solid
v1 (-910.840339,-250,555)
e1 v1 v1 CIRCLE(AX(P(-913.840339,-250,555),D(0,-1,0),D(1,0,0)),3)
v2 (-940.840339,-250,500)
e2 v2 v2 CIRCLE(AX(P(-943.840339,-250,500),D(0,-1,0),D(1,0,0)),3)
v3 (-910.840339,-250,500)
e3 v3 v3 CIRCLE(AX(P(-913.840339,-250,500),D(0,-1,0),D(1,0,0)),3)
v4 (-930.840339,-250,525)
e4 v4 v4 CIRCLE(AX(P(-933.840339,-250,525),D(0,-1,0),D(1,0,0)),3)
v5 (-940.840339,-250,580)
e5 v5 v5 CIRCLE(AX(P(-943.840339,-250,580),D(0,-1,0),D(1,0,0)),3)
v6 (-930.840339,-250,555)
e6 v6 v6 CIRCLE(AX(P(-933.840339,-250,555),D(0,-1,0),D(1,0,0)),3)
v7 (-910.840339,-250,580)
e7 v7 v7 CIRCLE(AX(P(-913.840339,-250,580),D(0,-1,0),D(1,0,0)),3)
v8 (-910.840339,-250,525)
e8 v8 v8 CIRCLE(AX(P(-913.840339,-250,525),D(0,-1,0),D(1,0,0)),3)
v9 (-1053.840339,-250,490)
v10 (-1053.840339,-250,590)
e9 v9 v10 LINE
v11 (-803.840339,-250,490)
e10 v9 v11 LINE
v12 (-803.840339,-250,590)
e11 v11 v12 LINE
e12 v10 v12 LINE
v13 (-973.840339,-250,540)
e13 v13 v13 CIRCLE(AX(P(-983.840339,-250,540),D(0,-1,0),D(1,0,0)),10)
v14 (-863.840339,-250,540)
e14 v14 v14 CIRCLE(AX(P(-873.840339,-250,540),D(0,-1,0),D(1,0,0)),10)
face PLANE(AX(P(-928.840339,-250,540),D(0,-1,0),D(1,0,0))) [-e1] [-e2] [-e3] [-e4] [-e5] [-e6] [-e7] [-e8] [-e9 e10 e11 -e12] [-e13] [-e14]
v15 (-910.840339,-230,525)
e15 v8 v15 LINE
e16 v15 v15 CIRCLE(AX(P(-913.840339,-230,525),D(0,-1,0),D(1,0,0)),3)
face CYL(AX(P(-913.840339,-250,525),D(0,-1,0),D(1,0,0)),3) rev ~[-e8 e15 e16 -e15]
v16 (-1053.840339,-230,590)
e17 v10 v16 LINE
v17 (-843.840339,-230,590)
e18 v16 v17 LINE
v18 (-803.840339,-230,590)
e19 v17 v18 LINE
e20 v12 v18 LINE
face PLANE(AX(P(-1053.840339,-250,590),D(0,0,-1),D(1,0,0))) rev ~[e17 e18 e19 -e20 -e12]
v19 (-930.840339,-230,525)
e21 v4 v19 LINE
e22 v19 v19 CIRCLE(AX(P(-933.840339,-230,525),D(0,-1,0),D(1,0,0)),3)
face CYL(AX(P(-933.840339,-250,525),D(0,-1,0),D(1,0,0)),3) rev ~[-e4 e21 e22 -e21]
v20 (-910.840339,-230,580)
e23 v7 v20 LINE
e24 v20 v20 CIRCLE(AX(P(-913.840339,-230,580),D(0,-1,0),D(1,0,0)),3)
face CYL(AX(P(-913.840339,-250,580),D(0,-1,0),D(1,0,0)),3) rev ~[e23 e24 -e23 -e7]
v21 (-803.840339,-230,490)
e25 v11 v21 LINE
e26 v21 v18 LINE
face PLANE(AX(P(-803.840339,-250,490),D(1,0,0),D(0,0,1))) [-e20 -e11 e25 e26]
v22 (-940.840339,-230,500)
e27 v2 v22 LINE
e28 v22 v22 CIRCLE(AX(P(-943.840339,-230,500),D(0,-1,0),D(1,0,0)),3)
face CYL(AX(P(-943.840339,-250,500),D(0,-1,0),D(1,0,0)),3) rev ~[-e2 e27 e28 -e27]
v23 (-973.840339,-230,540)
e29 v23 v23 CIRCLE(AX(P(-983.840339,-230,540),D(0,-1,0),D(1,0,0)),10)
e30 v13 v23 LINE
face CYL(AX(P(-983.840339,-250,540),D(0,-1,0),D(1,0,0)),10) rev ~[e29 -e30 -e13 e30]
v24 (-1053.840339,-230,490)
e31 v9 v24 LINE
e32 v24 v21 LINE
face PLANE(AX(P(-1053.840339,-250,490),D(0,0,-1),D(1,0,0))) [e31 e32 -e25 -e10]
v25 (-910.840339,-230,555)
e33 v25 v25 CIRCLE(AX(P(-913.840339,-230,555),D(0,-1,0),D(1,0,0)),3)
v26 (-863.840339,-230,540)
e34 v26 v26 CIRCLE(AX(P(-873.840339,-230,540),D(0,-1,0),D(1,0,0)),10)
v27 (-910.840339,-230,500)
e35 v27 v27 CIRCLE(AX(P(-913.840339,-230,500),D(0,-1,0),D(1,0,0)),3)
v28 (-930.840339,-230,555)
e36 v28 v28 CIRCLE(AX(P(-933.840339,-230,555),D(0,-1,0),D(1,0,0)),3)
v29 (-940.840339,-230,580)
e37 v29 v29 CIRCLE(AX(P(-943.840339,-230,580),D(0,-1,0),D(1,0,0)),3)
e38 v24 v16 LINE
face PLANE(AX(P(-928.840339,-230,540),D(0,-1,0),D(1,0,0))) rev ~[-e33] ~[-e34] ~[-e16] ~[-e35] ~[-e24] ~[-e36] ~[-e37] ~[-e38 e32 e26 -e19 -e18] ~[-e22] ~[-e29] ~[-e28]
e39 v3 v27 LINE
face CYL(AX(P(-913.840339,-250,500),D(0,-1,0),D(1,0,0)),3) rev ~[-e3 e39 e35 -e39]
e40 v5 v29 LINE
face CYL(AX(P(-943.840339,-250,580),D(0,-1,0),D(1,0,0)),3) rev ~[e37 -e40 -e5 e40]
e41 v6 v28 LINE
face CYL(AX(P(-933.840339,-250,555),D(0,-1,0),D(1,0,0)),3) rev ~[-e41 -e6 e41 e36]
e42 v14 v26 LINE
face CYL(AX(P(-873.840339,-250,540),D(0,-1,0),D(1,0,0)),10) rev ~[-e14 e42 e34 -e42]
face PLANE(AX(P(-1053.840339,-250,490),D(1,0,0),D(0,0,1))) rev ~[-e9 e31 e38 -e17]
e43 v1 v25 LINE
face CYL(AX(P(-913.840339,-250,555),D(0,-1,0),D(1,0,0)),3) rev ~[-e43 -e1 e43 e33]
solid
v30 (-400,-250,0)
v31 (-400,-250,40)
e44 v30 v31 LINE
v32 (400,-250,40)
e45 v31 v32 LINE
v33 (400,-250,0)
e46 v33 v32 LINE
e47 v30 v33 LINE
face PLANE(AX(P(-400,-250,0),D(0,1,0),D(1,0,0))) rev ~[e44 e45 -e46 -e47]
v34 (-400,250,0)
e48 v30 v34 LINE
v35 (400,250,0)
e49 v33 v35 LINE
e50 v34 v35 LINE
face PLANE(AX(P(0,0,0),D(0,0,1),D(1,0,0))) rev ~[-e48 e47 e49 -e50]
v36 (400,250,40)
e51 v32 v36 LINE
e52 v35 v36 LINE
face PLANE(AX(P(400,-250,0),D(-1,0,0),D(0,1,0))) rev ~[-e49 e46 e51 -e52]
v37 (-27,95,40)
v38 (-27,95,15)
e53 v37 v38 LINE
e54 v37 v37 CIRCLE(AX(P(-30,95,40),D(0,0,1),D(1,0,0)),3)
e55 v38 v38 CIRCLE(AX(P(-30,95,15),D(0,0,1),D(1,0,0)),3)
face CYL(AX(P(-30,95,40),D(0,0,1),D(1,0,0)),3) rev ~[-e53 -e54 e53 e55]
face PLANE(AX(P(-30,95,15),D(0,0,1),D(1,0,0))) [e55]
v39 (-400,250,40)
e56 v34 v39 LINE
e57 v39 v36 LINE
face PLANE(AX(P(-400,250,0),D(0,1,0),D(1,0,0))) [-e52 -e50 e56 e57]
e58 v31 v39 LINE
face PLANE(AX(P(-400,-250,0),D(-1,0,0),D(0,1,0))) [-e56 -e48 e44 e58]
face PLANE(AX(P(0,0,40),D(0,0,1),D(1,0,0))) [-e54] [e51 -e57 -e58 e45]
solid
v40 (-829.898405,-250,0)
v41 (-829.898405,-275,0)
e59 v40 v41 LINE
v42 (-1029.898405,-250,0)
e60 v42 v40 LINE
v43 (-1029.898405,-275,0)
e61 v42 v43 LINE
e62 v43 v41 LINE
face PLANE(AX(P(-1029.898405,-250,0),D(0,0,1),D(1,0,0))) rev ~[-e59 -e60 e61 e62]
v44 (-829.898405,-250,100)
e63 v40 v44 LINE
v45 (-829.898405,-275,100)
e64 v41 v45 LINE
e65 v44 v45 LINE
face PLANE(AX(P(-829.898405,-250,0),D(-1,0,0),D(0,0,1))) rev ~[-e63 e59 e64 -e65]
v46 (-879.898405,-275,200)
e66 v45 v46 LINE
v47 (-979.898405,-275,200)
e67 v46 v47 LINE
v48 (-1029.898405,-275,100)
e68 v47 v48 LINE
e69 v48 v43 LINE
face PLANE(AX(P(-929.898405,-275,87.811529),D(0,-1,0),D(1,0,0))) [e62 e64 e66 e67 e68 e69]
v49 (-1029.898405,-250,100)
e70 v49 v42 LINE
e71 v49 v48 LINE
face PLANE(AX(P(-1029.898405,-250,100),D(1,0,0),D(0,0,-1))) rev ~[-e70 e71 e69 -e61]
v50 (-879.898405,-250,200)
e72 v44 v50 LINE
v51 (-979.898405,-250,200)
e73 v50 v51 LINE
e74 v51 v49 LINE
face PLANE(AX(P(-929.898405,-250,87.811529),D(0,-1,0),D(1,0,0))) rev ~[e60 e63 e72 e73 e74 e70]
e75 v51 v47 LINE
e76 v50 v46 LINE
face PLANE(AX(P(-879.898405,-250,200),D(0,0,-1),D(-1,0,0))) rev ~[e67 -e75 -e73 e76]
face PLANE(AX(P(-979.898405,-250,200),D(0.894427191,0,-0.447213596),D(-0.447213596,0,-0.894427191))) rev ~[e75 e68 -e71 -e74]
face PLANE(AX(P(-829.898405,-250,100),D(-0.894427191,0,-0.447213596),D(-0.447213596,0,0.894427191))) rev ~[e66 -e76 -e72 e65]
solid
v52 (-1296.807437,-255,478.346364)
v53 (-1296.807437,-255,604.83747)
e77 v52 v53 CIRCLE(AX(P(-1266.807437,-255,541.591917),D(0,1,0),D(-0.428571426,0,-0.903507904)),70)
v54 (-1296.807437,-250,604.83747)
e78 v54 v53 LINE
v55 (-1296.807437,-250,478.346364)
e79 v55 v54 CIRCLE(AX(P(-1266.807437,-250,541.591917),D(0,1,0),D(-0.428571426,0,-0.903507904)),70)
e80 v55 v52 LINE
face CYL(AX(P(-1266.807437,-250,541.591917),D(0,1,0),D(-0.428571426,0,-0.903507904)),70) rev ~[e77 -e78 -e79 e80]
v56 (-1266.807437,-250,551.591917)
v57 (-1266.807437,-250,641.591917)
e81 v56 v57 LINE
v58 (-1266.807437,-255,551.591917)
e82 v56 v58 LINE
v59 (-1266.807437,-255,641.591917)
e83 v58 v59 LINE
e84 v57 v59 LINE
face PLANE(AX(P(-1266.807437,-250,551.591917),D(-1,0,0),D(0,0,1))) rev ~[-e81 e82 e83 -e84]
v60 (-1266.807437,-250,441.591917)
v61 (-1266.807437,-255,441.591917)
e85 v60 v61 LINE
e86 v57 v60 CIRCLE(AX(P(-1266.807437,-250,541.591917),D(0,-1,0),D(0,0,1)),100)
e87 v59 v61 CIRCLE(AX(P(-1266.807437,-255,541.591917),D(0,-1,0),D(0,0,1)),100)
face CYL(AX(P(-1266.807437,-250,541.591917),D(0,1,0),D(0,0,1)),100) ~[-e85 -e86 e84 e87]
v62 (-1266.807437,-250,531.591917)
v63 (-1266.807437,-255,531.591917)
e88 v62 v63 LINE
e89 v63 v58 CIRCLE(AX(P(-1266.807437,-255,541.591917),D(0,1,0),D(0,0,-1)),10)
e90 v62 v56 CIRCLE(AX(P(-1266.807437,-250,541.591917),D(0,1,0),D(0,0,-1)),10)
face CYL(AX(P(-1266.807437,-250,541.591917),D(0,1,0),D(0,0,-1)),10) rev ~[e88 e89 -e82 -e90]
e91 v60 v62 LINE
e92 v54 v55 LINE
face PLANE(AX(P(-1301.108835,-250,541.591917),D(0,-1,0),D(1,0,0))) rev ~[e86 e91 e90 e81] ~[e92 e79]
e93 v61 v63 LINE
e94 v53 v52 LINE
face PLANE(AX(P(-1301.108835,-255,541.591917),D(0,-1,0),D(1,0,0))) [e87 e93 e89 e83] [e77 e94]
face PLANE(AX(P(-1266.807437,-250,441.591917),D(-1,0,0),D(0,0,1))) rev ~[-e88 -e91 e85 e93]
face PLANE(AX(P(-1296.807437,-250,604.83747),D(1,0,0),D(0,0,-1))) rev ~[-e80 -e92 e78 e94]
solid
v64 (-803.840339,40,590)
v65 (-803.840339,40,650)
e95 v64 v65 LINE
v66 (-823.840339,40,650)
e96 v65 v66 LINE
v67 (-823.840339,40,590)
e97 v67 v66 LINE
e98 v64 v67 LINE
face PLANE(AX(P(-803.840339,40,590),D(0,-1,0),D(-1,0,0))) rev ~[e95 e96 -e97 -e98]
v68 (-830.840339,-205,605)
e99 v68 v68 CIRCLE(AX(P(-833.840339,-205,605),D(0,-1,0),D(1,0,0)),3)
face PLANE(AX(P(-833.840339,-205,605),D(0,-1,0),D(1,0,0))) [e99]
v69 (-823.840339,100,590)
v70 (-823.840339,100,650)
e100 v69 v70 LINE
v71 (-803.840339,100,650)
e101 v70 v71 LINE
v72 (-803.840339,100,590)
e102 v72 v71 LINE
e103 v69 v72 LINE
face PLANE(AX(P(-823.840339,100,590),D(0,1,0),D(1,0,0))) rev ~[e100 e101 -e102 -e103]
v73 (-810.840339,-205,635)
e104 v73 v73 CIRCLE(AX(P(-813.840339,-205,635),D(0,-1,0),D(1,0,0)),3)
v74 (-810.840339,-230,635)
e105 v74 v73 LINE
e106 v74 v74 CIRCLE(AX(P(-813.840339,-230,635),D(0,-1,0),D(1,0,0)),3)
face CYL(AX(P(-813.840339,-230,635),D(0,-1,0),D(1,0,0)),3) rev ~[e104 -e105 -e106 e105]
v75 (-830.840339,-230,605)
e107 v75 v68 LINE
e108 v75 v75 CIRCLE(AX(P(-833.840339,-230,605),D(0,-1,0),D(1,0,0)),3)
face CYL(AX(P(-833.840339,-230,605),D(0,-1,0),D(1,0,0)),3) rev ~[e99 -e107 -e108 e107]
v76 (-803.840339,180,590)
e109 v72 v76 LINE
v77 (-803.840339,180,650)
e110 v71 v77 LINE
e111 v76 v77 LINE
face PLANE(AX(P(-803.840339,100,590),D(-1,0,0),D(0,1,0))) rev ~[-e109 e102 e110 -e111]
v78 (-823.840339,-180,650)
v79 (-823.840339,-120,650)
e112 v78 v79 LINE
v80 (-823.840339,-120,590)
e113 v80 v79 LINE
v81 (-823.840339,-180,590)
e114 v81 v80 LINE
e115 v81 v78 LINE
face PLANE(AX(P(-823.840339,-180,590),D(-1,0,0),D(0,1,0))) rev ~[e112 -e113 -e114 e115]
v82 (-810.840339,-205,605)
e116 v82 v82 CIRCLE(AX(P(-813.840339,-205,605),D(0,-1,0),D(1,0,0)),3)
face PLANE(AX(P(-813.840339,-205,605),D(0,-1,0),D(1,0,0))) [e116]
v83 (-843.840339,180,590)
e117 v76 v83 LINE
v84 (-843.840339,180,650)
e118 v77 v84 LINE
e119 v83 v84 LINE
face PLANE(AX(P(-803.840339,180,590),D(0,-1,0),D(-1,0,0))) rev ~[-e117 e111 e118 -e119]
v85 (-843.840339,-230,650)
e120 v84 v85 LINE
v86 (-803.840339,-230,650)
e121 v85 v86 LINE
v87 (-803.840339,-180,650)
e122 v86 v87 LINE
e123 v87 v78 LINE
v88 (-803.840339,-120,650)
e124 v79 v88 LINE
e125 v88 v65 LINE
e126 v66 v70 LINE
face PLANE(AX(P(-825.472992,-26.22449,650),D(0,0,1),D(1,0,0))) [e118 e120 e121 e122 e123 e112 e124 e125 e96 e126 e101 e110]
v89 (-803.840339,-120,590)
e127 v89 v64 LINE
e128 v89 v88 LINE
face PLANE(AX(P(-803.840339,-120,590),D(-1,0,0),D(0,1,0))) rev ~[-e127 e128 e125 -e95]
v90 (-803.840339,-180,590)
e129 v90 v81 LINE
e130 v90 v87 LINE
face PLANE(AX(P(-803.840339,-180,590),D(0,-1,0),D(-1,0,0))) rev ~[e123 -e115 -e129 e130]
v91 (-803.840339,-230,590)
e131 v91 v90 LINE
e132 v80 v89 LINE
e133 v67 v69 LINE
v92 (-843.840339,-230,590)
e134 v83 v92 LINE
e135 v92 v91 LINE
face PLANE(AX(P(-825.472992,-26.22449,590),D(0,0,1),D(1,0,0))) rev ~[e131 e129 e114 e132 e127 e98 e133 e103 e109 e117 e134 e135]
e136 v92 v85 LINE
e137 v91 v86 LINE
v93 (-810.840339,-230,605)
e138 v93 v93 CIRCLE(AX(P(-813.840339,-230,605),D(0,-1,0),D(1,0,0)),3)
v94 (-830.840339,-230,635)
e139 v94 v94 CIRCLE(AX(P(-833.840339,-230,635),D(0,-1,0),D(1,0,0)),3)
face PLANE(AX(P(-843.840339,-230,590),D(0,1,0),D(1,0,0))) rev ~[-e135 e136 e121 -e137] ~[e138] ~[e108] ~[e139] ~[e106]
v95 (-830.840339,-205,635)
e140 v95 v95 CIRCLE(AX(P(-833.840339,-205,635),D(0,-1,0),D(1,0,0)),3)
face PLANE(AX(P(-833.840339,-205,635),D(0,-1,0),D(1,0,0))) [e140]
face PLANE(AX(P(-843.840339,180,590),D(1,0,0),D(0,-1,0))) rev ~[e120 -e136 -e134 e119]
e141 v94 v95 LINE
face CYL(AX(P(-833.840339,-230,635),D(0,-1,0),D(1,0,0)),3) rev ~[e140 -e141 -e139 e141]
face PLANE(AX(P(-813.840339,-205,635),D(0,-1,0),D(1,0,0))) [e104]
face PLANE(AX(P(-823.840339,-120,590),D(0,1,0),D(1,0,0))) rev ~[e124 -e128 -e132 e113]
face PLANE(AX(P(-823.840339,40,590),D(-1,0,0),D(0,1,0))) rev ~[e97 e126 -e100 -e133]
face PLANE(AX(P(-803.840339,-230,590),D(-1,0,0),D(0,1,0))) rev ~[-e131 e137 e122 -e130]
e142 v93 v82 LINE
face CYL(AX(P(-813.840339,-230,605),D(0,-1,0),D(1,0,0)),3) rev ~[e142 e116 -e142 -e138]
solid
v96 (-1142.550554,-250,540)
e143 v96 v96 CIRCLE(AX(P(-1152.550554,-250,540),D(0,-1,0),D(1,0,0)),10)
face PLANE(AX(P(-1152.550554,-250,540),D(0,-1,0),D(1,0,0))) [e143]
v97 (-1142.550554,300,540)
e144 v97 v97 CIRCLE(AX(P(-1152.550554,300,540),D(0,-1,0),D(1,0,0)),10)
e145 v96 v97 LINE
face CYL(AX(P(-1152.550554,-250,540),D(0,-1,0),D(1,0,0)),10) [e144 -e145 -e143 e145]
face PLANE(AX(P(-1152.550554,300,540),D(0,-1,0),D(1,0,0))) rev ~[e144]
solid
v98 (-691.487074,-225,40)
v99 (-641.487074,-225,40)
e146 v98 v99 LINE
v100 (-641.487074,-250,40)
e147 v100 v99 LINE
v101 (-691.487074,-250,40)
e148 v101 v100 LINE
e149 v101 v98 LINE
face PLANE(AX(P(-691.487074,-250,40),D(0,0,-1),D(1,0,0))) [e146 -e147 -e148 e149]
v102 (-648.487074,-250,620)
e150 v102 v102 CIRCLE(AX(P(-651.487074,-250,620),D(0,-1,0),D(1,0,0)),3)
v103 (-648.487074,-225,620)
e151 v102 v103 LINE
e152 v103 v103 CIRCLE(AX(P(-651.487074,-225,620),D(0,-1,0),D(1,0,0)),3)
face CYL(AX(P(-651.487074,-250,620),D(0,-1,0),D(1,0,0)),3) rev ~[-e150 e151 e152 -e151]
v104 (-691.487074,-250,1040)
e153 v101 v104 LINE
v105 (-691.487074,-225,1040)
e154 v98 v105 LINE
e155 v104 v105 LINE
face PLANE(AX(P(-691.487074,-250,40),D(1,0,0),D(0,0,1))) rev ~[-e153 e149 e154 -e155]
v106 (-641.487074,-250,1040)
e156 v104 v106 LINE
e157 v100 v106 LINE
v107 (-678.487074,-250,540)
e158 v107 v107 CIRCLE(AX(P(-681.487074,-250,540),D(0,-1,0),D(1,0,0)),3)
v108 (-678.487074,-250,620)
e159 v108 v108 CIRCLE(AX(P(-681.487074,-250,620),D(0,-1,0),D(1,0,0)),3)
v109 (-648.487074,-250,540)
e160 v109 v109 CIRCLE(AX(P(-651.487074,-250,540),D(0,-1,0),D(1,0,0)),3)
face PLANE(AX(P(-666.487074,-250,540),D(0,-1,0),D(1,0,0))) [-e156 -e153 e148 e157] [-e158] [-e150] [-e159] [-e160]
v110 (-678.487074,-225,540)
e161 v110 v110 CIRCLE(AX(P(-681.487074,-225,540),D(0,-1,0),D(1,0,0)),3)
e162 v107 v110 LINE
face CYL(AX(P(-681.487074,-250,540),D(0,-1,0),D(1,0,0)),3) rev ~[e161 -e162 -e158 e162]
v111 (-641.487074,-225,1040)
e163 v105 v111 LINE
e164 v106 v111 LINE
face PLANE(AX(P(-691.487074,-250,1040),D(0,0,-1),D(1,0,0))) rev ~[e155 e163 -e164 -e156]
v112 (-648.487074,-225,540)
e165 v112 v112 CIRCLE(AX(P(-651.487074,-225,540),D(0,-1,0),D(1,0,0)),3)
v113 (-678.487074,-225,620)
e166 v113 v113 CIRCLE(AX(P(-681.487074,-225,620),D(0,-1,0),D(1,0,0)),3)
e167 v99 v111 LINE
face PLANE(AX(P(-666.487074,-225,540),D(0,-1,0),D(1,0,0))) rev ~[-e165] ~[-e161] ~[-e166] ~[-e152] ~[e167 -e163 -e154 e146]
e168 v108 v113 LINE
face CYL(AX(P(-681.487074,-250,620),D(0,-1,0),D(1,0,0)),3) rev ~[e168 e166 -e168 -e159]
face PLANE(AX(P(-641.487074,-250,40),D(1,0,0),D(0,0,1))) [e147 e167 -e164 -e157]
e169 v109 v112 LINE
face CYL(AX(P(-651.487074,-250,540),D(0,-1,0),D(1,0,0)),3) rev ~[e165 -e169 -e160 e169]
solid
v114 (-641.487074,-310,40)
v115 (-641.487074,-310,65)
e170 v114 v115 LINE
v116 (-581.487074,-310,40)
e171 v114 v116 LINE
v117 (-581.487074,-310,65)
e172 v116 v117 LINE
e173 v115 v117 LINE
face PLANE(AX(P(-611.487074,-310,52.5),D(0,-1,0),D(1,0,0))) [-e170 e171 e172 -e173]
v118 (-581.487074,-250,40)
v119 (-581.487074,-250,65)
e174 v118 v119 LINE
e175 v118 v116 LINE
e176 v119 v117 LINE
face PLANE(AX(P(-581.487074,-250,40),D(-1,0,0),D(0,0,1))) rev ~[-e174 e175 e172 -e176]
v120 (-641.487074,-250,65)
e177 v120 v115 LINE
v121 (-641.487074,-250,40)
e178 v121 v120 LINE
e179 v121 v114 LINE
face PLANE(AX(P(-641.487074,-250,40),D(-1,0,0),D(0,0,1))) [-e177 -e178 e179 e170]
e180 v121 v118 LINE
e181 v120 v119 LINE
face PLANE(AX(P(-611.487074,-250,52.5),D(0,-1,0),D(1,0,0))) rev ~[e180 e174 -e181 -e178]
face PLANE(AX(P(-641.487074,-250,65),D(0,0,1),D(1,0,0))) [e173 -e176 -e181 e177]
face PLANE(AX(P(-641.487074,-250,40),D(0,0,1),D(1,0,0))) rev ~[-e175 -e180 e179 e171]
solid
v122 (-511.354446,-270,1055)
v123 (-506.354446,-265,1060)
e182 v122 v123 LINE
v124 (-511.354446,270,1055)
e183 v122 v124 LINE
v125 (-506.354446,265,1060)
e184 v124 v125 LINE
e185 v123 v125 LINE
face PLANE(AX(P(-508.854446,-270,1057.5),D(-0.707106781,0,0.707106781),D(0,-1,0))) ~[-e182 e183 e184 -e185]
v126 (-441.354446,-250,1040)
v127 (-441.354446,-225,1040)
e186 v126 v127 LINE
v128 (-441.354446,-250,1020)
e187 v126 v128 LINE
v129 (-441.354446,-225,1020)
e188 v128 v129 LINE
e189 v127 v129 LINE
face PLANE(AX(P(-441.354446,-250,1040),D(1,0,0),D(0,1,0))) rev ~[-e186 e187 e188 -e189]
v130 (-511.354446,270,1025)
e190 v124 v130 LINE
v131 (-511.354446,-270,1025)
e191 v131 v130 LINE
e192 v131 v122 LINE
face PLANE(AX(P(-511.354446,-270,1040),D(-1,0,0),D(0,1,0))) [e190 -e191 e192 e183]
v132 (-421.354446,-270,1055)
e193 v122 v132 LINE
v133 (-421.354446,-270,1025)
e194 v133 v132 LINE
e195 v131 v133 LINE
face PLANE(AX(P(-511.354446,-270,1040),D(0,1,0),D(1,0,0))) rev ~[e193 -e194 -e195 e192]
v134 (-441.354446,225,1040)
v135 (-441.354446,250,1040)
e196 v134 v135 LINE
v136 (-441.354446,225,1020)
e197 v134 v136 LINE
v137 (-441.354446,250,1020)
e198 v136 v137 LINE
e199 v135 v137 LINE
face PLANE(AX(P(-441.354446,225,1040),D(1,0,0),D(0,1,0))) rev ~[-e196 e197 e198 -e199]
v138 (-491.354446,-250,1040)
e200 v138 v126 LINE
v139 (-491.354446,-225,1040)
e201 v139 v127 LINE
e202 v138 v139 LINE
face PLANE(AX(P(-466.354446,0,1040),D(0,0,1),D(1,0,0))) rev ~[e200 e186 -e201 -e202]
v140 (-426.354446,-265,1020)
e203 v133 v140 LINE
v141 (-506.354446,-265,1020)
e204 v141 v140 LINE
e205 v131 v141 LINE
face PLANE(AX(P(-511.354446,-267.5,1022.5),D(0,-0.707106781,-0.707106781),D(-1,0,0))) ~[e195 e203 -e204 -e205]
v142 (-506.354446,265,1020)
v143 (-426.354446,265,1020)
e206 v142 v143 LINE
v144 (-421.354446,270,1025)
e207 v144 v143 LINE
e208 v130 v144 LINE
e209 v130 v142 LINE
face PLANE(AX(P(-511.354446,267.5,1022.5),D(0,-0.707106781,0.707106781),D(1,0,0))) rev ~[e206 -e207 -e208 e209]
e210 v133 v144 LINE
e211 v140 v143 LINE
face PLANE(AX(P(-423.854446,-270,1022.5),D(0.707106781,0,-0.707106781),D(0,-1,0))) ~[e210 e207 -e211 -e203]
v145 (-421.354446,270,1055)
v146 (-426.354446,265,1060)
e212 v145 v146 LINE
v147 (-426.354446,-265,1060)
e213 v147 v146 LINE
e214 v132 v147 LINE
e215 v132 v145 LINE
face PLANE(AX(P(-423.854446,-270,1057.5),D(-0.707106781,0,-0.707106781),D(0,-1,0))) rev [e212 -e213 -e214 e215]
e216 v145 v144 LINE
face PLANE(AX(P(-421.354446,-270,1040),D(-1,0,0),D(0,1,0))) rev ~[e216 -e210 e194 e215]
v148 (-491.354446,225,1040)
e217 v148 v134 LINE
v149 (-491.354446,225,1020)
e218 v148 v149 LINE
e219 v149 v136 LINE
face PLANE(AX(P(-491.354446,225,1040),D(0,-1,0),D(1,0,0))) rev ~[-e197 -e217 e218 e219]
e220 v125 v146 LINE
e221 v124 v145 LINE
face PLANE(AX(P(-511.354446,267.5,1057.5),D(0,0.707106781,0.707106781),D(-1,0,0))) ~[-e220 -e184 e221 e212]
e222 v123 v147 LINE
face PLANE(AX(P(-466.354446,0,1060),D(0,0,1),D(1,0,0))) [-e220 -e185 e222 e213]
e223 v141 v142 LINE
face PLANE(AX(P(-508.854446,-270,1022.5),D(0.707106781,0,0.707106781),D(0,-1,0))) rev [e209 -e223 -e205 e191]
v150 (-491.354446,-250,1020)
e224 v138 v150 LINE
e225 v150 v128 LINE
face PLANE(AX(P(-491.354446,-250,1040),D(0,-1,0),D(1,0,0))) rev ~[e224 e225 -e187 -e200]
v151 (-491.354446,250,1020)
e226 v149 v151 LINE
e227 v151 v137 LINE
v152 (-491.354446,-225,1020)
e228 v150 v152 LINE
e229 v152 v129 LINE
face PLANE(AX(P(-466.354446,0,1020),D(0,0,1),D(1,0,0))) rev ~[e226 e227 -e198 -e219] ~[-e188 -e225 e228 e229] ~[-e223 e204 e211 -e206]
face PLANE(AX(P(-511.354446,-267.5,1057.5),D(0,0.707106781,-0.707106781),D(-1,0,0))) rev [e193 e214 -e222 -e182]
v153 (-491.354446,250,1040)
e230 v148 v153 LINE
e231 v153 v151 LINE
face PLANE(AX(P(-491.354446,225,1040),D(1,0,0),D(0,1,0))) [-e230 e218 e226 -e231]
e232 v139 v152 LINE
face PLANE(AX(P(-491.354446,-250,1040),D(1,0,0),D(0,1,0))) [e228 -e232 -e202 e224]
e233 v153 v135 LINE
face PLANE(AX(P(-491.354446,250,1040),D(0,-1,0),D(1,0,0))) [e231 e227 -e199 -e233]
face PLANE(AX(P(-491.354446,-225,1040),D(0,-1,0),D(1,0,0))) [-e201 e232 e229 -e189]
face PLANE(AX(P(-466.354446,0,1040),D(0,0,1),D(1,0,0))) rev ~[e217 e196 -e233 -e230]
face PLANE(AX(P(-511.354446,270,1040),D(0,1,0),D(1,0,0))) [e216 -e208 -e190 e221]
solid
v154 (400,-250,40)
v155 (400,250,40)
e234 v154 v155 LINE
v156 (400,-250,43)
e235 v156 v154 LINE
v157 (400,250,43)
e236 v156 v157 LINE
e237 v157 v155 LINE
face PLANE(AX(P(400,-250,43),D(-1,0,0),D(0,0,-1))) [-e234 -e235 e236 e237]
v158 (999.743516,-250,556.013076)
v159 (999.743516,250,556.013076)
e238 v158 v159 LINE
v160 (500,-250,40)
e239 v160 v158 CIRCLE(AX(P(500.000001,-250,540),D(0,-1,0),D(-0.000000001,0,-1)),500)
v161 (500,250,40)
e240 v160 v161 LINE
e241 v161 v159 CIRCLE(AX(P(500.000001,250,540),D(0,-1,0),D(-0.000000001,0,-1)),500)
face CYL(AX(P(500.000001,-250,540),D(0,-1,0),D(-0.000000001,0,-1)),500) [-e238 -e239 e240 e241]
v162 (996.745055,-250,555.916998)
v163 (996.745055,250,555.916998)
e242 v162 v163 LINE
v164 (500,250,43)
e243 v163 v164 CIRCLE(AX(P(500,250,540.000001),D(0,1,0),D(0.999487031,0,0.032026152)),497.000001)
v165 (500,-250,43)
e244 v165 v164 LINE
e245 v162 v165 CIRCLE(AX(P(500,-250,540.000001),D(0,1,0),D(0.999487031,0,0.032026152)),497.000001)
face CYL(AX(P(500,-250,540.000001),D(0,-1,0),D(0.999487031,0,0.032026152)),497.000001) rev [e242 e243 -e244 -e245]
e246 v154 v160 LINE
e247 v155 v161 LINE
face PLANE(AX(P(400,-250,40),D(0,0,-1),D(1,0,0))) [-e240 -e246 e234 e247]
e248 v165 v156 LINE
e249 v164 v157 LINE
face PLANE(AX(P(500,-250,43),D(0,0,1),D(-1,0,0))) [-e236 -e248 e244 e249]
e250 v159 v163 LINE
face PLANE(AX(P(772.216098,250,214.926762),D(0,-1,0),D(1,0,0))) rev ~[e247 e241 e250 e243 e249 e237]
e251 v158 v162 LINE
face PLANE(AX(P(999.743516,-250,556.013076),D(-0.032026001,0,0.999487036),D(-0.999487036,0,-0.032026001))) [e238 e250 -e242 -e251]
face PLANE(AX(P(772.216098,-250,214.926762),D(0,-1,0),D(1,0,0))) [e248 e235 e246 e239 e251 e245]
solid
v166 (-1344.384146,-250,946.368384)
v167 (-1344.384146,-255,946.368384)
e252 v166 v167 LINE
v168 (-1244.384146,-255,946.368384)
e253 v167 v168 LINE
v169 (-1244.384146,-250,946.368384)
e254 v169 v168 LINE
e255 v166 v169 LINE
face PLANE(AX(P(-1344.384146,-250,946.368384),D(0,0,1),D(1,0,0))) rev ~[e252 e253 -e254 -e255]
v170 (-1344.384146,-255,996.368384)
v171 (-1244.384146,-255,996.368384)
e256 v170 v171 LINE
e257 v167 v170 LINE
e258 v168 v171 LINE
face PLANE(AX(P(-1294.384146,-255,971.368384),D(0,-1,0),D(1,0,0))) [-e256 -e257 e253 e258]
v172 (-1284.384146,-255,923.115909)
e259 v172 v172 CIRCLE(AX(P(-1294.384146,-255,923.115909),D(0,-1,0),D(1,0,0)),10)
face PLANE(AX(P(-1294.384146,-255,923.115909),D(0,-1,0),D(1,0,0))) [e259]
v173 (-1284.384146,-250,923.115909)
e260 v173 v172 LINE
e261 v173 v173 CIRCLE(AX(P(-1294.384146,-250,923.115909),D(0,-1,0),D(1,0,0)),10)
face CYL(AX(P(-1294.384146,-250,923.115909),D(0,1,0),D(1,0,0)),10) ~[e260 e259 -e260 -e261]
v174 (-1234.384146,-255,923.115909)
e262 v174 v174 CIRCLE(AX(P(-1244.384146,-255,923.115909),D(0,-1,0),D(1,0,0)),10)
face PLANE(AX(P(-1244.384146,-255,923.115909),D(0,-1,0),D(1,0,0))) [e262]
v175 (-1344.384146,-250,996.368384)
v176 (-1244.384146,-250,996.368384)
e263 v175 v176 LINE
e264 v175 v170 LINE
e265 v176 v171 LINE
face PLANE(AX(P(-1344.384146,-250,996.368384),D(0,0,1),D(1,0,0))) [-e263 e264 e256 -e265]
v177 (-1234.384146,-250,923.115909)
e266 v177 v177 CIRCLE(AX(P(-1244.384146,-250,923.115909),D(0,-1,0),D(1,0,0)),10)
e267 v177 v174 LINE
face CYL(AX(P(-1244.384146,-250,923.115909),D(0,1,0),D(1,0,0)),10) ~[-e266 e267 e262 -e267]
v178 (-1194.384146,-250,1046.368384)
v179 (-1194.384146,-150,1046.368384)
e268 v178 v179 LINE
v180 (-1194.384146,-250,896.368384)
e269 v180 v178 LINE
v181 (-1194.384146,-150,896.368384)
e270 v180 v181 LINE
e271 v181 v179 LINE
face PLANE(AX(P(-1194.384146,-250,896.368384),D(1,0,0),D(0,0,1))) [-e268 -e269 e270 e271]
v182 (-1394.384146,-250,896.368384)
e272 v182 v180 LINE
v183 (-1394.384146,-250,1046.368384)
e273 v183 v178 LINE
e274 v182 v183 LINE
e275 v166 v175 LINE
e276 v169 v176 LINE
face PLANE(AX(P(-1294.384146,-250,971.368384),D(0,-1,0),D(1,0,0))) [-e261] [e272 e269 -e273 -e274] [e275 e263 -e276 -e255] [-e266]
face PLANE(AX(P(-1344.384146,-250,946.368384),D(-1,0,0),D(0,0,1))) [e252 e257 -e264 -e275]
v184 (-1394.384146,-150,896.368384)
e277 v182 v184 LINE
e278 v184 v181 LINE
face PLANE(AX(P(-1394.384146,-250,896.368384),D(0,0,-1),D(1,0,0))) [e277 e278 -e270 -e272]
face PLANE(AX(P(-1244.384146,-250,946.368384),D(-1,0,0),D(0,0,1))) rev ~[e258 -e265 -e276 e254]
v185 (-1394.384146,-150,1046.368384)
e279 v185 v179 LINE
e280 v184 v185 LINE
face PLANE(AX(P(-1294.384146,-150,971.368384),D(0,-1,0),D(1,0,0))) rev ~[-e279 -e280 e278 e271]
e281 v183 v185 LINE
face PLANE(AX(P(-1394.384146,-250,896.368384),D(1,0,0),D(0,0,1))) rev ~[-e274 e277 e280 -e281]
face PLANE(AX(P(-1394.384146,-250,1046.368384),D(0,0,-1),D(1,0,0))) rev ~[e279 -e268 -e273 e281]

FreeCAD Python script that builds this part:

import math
import FreeCAD as App
import Part
import Sketcher
Q = App.Units.Quantity


def edges_at(feature, points):
    """Names of the edges that pass closest to the given points."""
    edges = feature.Shape.Edges
    near = lambda p: min(range(len(edges)), key=lambda i: edges[i].distToShape(Part.Vertex(*p))[0])
    return sorted({f"Edge{near(p) + 1}" for p in points})


def add_polygon(sketch, points):
    """Adds a closed chain of lines whose ends are joined by coincident constraints."""
    first, n = sketch.GeometryCount, len(points)
    for a, b in zip(points, points[1:] + points[:1]):
        sketch.addGeometry(Part.LineSegment(App.Vector(*a, 0), App.Vector(*b, 0)), False)
    for i in range(n):
        sketch.addConstraint(Sketcher.Constraint("Coincident", first + i, 2, first + (i + 1) % n, 1))

doc = App.newDocument("Part")
body = doc.addObject("PartDesign::Body", "Body")

sketch1 = body.newObject("Sketcher::SketchObject", "Sketch")
sketch1.AttachmentSupport = (doc.getObject("XY_Plane"), [""])
sketch1.MapMode = "FlatFace"
add_polygon(sketch1, [(-400, 250), (-400, -250), (400, -250), (400, 250)])
sketch1.addConstraint(Sketcher.Constraint("Vertical", 0))
sketch1.addConstraint(Sketcher.Constraint("Horizontal", 1))
sketch1.addConstraint(Sketcher.Constraint("Vertical", 2))
sketch1.addConstraint(Sketcher.Constraint("Horizontal", 3))
sketch1.addConstraint(Sketcher.Constraint("Symmetric", 0, 2, 2, 2, -1, 1))
sketch1.addConstraint(Sketcher.Constraint("DistanceX", 1, 1, 1, 2, 800.0))
sketch1.addConstraint(Sketcher.Constraint("DistanceY", 0, 2, 0, 1, 500.0))
pad1 = body.newObject("PartDesign::Pad", "Pad")
pad1.Profile = sketch1
pad1.Length = 40

sketch2 = body.newObject("Sketcher::SketchObject", "Sketch001")
sketch2.AttachmentSupport = (doc.getObject("XY_Plane"), [""])
sketch2.MapMode = "FlatFace"
sketch2.AttachmentOffset = App.Placement(App.Vector(0, 0, 40), App.Rotation())
sketch2.addGeometry(Part.Circle(App.Vector(-30, 95, 0), App.Vector(0, 0, 1), 3), False)
sketch2.addConstraint(Sketcher.Constraint("Diameter", 0, 6.0))
sketch2.addConstraint(Sketcher.Constraint("DistanceX", 0, 3, -1, 1, 30.0))
sketch2.addConstraint(Sketcher.Constraint("DistanceY", -1, 1, 0, 3, 95.0))
pocket1 = body.newObject("PartDesign::Pocket", "Pocket")
pocket1.Profile = sketch2
pocket1.Length = 25
body2 = doc.addObject("PartDesign::Body", "Body001")

sketch3 = body2.newObject("Sketcher::SketchObject", "Sketch002")
sketch3.AttachmentSupport = (doc.getObject("XZ_Plane001"), [""])
sketch3.MapMode = "FlatFace"
sketch3.AttachmentOffset = App.Placement(App.Vector(0, 0, 250), App.Rotation())
add_polygon(sketch3, [(-691.5, 1040), (-691.5, 40), (-641.5, 40), (-641.5, 1040)])
sketch3.addGeometry(Part.Circle(App.Vector(-681.5, 540, 0), App.Vector(0, 0, 1), 3), False)
sketch3.addGeometry(Part.Circle(App.Vector(-651.5, 540, 0), App.Vector(0, 0, 1), 3), False)
sketch3.addGeometry(Part.Circle(App.Vector(-681.5, 620, 0), App.Vector(0, 0, 1), 3), False)
sketch3.addGeometry(Part.Circle(App.Vector(-651.5, 620, 0), App.Vector(0, 0, 1), 3), False)
sketch3.addConstraint(Sketcher.Constraint("Vertical", 0))
sketch3.addConstraint(Sketcher.Constraint("Horizontal", 1))
sketch3.addConstraint(Sketcher.Constraint("Vertical", 2))
sketch3.addConstraint(Sketcher.Constraint("Horizontal", 3))
sketch3.addConstraint(Sketcher.Constraint("Equal", 4, 5))
sketch3.addConstraint(Sketcher.Constraint("Equal", 5, 6))
sketch3.addConstraint(Sketcher.Constraint("Equal", 6, 7))
sketch3.addConstraint(Sketcher.Constraint("Horizontal", 4, 3, 5, 3))
sketch3.addConstraint(Sketcher.Constraint("Horizontal", 6, 3, 7, 3))
sketch3.addConstraint(Sketcher.Constraint("Vertical", 4, 3, 6, 3))
sketch3.addConstraint(Sketcher.Constraint("Vertical", 5, 3, 7, 3))
sketch3.addConstraint(Sketcher.Constraint("Diameter", 4, 6.0))
sketch3.addConstraint(Sketcher.Constraint("DistanceX", 1, 1, 1, 2, 50.0))
sketch3.addConstraint(Sketcher.Constraint("DistanceY", 0, 2, 0, 1, 1000.0))
sketch3.addConstraint(Sketcher.Constraint("DistanceY", -1, 1, 4, 3, 540.0))
sketch3.addConstraint(Sketcher.Constraint("DistanceY", -1, 1, 6, 3, 620.0))
sketch3.addConstraint(Sketcher.Constraint("DistanceY", -1, 1, 0, 2, 40.0))
sketch3.addConstraint(Sketcher.Constraint("DistanceX", 4, 3, 5, 3, 30.0))
sketch3.addConstraint(Sketcher.Constraint("DistanceX", 0, 2, 4, 3, 10.0))
sketch3.addConstraint(Sketcher.Constraint("DistanceX", 4, 3, -1, 1, 681.487074))
pad2 = body2.newObject("PartDesign::Pad", "Pad001")
pad2.Profile = sketch3
pad2.Length = 25
pad2.Reversed = True
body3 = doc.addObject("PartDesign::Body", "Body002")

sketch4 = body3.newObject("Sketcher::SketchObject", "Sketch003")
sketch4.AttachmentSupport = (doc.getObject("XZ_Plane002"), [""])
sketch4.MapMode = "FlatFace"
sketch4.AttachmentOffset = App.Placement(App.Vector(0, 0, 250), App.Rotation())
add_polygon(sketch4, [(-1030, 0), (-830, 0), (-830, 100), (-880, 200), (-980, 200), (-1030, 100)])
sketch4.addConstraint(Sketcher.Constraint("Horizontal", 0))
sketch4.addConstraint(Sketcher.Constraint("Vertical", 1))
sketch4.addConstraint(Sketcher.Constraint("Horizontal", 3))
sketch4.addConstraint(Sketcher.Constraint("Vertical", 5))
sketch4.addConstraint(Sketcher.Constraint("PointOnObject", 0, 2, -1))
sketch4.addConstraint(Sketcher.Constraint("Horizontal", 1, 2, 4, 2))
sketch4.addConstraint(Sketcher.Constraint("Equal", 3, 1))
sketch4.addConstraint(Sketcher.Constraint("Equal", 2, 4))
sketch4.addConstraint(Sketcher.Constraint("DistanceX", 0, 1, 0, 2, 200.0))
sketch4.addConstraint(Sketcher.Constraint("DistanceX", 3, 2, 3, 1, 100.0))
sketch4.addConstraint(Sketcher.Constraint("DistanceY", -1, 1, 2, 2, 200.0))
sketch4.addConstraint(Sketcher.Constraint("DistanceX", 0, 2, -1, 1, 829.898405))
pad3 = body3.newObject("PartDesign::Pad", "Pad002")
pad3.Profile = sketch4
pad3.Length = 25
body4 = doc.addObject("PartDesign::Body", "Body003")
body4.AllowCompound = True

sketch5 = body4.newObject("Sketcher::SketchObject", "Sketch004")
sketch5.AttachmentSupport = (doc.getObject("XZ_Plane003"), [""])
sketch5.MapMode = "FlatFace"
sketch5.AttachmentOffset = App.Placement(App.Vector(0, 0, 250), App.Rotation())
add_polygon(sketch5, [(-1053.8, 590), (-1053.8, 490), (-803.8, 490), (-803.8, 590)])
sketch5.addGeometry(Part.Circle(App.Vector(-943.8, 500, 0), App.Vector(0, 0, 1), 3), False)
sketch5.addGeometry(Part.Circle(App.Vector(-933.8, 525, 0), App.Vector(0, 0, 1), 3), False)
sketch5.addGeometry(Part.Circle(App.Vector(-913.8, 500, 0), App.Vector(0, 0, 1), 3), False)
sketch5.addGeometry(Part.Circle(App.Vector(-913.8, 525, 0), App.Vector(0, 0, 1), 3), False)
sketch5.addGeometry(Part.Circle(App.Vector(-983.8, 540, 0), App.Vector(0, 0, 1), 10), False)
sketch5.addGeometry(Part.Circle(App.Vector(-933.8, 555, 0), App.Vector(0, 0, 1), 3), False)
sketch5.addGeometry(Part.Circle(App.Vector(-943.8, 580, 0), App.Vector(0, 0, 1), 3), False)
sketch5.addGeometry(Part.Circle(App.Vector(-913.8, 555, 0), App.Vector(0, 0, 1), 3), False)
sketch5.addGeometry(Part.Circle(App.Vector(-873.8, 540, 0), App.Vector(0, 0, 1), 10), False)
sketch5.addGeometry(Part.Circle(App.Vector(-913.8, 580, 0), App.Vector(0, 0, 1), 3), False)
sketch5.addConstraint(Sketcher.Constraint("Vertical", 0))
sketch5.addConstraint(Sketcher.Constraint("Horizontal", 1))
sketch5.addConstraint(Sketcher.Constraint("Vertical", 2))
sketch5.addConstraint(Sketcher.Constraint("Horizontal", 3))
sketch5.addConstraint(Sketcher.Constraint("Equal", 4, 5))
sketch5.addConstraint(Sketcher.Constraint("Equal", 5, 6))
sketch5.addConstraint(Sketcher.Constraint("Equal", 6, 7))
sketch5.addConstraint(Sketcher.Constraint("Equal", 7, 9))
sketch5.addConstraint(Sketcher.Constraint("Equal", 9, 10))
sketch5.addConstraint(Sketcher.Constraint("Equal", 10, 11))
sketch5.addConstraint(Sketcher.Constraint("Equal", 8, 12))
sketch5.addConstraint(Sketcher.Constraint("Equal", 11, 13))
sketch5.addConstraint(Sketcher.Constraint("Horizontal", 4, 3, 6, 3))
sketch5.addConstraint(Sketcher.Constraint("Horizontal", 5, 3, 7, 3))
sketch5.addConstraint(Sketcher.Constraint("Horizontal", 9, 3, 11, 3))
sketch5.addConstraint(Sketcher.Constraint("Horizontal", 8, 3, 12, 3))
sketch5.addConstraint(Sketcher.Constraint("Horizontal", 10, 3, 13, 3))
sketch5.addConstraint(Sketcher.Constraint("Vertical", 6, 3, 7, 3))
sketch5.addConstraint(Sketcher.Constraint("Vertical", 5, 3, 9, 3))
sketch5.addConstraint(Sketcher.Constraint("Vertical", 4, 3, 10, 3))
sketch5.addConstraint(Sketcher.Constraint("Vertical", 7, 3, 11, 3))
sketch5.addConstraint(Sketcher.Constraint("Vertical", 11, 3, 13, 3))
sketch5.addConstraint(Sketcher.Constraint("Diameter", 4, 6.0))
sketch5.addConstraint(Sketcher.Constraint("Diameter", 8, 20.0))
sketch5.addConstraint(Sketcher.Constraint("DistanceX", 1, 1, 1, 2, 250.0))
sketch5.addConstraint(Sketcher.Constraint("DistanceY", 0, 2, 0, 1, 100.0))
sketch5.addConstraint(Sketcher.Constraint("DistanceY", -1, 1, 4, 3, 500.0))
sketch5.addConstraint(Sketcher.Constraint("DistanceY", -1, 1, 5, 3, 525.0))
sketch5.addConstraint(Sketcher.Constraint("DistanceY", -1, 1, 8, 3, 540.0))
sketch5.addConstraint(Sketcher.Constraint("DistanceY", -1, 1, 9, 3, 555.0))
sketch5.addConstraint(Sketcher.Constraint("DistanceY", -1, 1, 10, 3, 580.0))
sketch5.addConstraint(Sketcher.Constraint("DistanceY", -1, 1, 0, 2, 490.0))
sketch5.addConstraint(Sketcher.Constraint("DistanceX", 4, 3, 5, 3, 10.0))
sketch5.addConstraint(Sketcher.Constraint("DistanceX", 4, 3, 6, 3, 30.0))
sketch5.addConstraint(Sketcher.Constraint("DistanceX", 8, 3, 5, 3, 50.0))
sketch5.addConstraint(Sketcher.Constraint("DistanceX", 7, 3, 12, 3, 40.0))
sketch5.addConstraint(Sketcher.Constraint("DistanceX", 0, 2, 8, 3, 70.0))
sketch5.addConstraint(Sketcher.Constraint("DistanceX", 4, 3, -1, 1, 943.840339))
pad4 = body4.newObject("PartDesign::Pad", "Pad003")
pad4.Profile = sketch5
pad4.Length = 20
pad4.Reversed = True

sketch6 = body4.newObject("Sketcher::SketchObject", "Sketch005")
sketch6.AttachmentSupport = (doc.getObject("XY_Plane003"), [""])
sketch6.MapMode = "FlatFace"
sketch6.AttachmentOffset = App.Placement(App.Vector(0, 0, 590), App.Rotation())
add_polygon(sketch6, [(-844, -230), (-804, -230), (-804, -180), (-824, -180), (-824, -120), (-804, -120), (-804, 40), (-824, 40), (-824, 100), (-804, 100), (-804, 180), (-844, 180)])
sketch6.addConstraint(Sketcher.Constraint("Horizontal", 0))
sketch6.addConstraint(Sketcher.Constraint("Vertical", 1))
sketch6.addConstraint(Sketcher.Constraint("Horizontal", 2))
sketch6.addConstraint(Sketcher.Constraint("Vertical", 3))
sketch6.addConstraint(Sketcher.Constraint("Horizontal", 4))
sketch6.addConstraint(Sketcher.Constraint("Vertical", 5))
sketch6.addConstraint(Sketcher.Constraint("Horizontal", 6))
sketch6.addConstraint(Sketcher.Constraint("Vertical", 7))
sketch6.addConstraint(Sketcher.Constraint("Horizontal", 8))
sketch6.addConstraint(Sketcher.Constraint("Vertical", 9))
sketch6.addConstraint(Sketcher.Constraint("Horizontal", 10))
sketch6.addConstraint(Sketcher.Constraint("Vertical", 11))
sketch6.addConstraint(Sketcher.Constraint("Symmetric", 1, 2, 9, 2, -1))
sketch6.addConstraint(Sketcher.Constraint("Vertical", 1, 2, 4, 2))
sketch6.addConstraint(Sketcher.Constraint("Vertical", 3, 2, 6, 2))
sketch6.addConstraint(Sketcher.Constraint("Equal", 3, 7))
sketch6.addConstraint(Sketcher.Constraint("DistanceX", 0, 1, 0, 2, 40.0))
sketch6.addConstraint(Sketcher.Constraint("DistanceX", 2, 2, 2, 1, 20.0))
sketch6.addConstraint(Sketcher.Constraint("DistanceY", 1, 1, 1, 2, 50.0))
sketch6.addConstraint(Sketcher.Constraint("DistanceY", 3, 1, 3, 2, 60.0))
sketch6.addConstraint(Sketcher.Constraint("DistanceY", 5, 1, 5, 2, 160.0))
sketch6.addConstraint(Sketcher.Constraint("DistanceY", 9, 1, 9, 2, 80.0))
sketch6.addConstraint(Sketcher.Constraint("DistanceX", 0, 2, -1, 1, 803.840339))
pad5 = body4.newObject("PartDesign::Pad", "Pad004")
pad5.Profile = sketch6
pad5.Length = 60

sketch7 = body4.newObject("Sketcher::SketchObject", "Sketch006")
sketch7.AttachmentSupport = (doc.getObject("XZ_Plane003"), [""])
sketch7.MapMode = "FlatFace"
sketch7.AttachmentOffset = App.Placement(App.Vector(0, 0, 230), App.Rotation())
sketch7.addGeometry(Part.Circle(App.Vector(-833.8, 635, 0), App.Vector(0, 0, 1), 3), False)
sketch7.addGeometry(Part.Circle(App.Vector(-813.8, 635, 0), App.Vector(0, 0, 1), 3), False)
sketch7.addGeometry(Part.Circle(App.Vector(-833.8, 605, 0), App.Vector(0, 0, 1), 3), False)
sketch7.addGeometry(Part.Circle(App.Vector(-813.8, 605, 0), App.Vector(0, 0, 1), 3), False)
sketch7.addConstraint(Sketcher.Constraint("Equal", 0, 1))
sketch7.addConstraint(Sketcher.Constraint("Equal", 1, 2))
sketch7.addConstraint(Sketcher.Constraint("Equal", 2, 3))
sketch7.addConstraint(Sketcher.Constraint("Horizontal", 0, 3, 1, 3))
sketch7.addConstraint(Sketcher.Constraint("Horizontal", 2, 3, 3, 3))
sketch7.addConstraint(Sketcher.Constraint("Vertical", 0, 3, 2, 3))
sketch7.addConstraint(Sketcher.Constraint("Vertical", 1, 3, 3, 3))
sketch7.addConstraint(Sketcher.Constraint("Diameter", 0, 6.0))
sketch7.addConstraint(Sketcher.Constraint("DistanceY", -1, 1, 0, 3, 635.0))
sketch7.addConstraint(Sketcher.Constraint("DistanceY", -1, 1, 2, 3, 605.0))
sketch7.addConstraint(Sketcher.Constraint("DistanceX", 0, 3, 1, 3, 20.0))
sketch7.addConstraint(Sketcher.Constraint("DistanceX", 0, 3, -1, 1, 833.840339))
pocket2 = body4.newObject("PartDesign::Pocket", "Pocket001")
pocket2.Profile = sketch7
pocket2.Length = 25
body5 = doc.addObject("PartDesign::Body", "Body004")

sketch8 = body5.newObject("Sketcher::SketchObject", "Sketch007")
sketch8.AttachmentSupport = (doc.getObject("XZ_Plane004"), [""])
sketch8.MapMode = "FlatFace"
sketch8.AttachmentOffset = App.Placement(App.Vector(0, 0, 250), App.Rotation())
sketch8.addGeometry(Part.Circle(App.Vector(-1153, 540, 0), App.Vector(0, 0, 1), 10), False)
sketch8.addConstraint(Sketcher.Constraint("Diameter", 0, 20.0))
sketch8.addConstraint(Sketcher.Constraint("DistanceY", -1, 1, 0, 3, 540.0))
sketch8.addConstraint(Sketcher.Constraint("DistanceX", 0, 3, -1, 1, 1152.550554))
pad6 = body5.newObject("PartDesign::Pad", "Pad005")
pad6.Profile = sketch8
pad6.Length = 550
pad6.Reversed = True
body6 = doc.addObject("PartDesign::Body", "Body005")

sketch9 = body6.newObject("Sketcher::SketchObject", "Sketch008")
sketch9.AttachmentSupport = (doc.getObject("XZ_Plane005"), [""])
sketch9.MapMode = "FlatFace"
sketch9.AttachmentOffset = App.Placement(App.Vector(0, 0, 250), App.Rotation())
add_polygon(sketch9, [(-641, 65), (-641, 40), (-581, 40), (-581, 65)])
sketch9.addConstraint(Sketcher.Constraint("Vertical", 0))
sketch9.addConstraint(Sketcher.Constraint("Horizontal", 1))
sketch9.addConstraint(Sketcher.Constraint("Vertical", 2))
sketch9.addConstraint(Sketcher.Constraint("Horizontal", 3))
sketch9.addConstraint(Sketcher.Constraint("DistanceX", 1, 1, 1, 2, 60.0))
sketch9.addConstraint(Sketcher.Constraint("DistanceY", 0, 2, 0, 1, 25.0))
sketch9.addConstraint(Sketcher.Constraint("DistanceY", -1, 1, 0, 2, 40.0))
sketch9.addConstraint(Sketcher.Constraint("DistanceX", 0, 2, -1, 1, 641.487074))
pad7 = body6.newObject("PartDesign::Pad", "Pad006")
pad7.Profile = sketch9
pad7.Length = 60
body7 = doc.addObject("PartDesign::Body", "Body006")

sketch10 = body7.newObject("Sketcher::SketchObject", "Sketch009")
sketch10.AttachmentSupport = (doc.getObject("XY_Plane006"), [""])
sketch10.MapMode = "FlatFace"
sketch10.AttachmentOffset = App.Placement(App.Vector(0, 0, 1040), App.Rotation())
add_polygon(sketch10, [(-511, 270), (-511, -270), (-421, -270), (-421, 270)])
add_polygon(sketch10, [(-441, -250), (-491, -250), (-491, -225), (-441, -225)])
add_polygon(sketch10, [(-441, 225), (-491, 225), (-491, 250), (-441, 250)])
sketch10.addConstraint(Sketcher.Constraint("Vertical", 0))
sketch10.addConstraint(Sketcher.Constraint("Horizontal", 1))
sketch10.addConstraint(Sketcher.Constraint("Vertical", 2))
sketch10.addConstraint(Sketcher.Constraint("Horizontal", 3))
sketch10.addConstraint(Sketcher.Constraint("Horizontal", 4))
sketch10.addConstraint(Sketcher.Constraint("Vertical", 5))
sketch10.addConstraint(Sketcher.Constraint("Horizontal", 6))
sketch10.addConstraint(Sketcher.Constraint("Vertical", 7))
sketch10.addConstraint(Sketcher.Constraint("Horizontal", 8))
sketch10.addConstraint(Sketcher.Constraint("Vertical", 9))
sketch10.addConstraint(Sketcher.Constraint("Horizontal", 10))
sketch10.addConstraint(Sketcher.Constraint("Vertical", 11))
sketch10.addConstraint(Sketcher.Constraint("Symmetric", 5, 2, 8, 2, -1))
sketch10.addConstraint(Sketcher.Constraint("Symmetric", 7, 2, 10, 2, -1))
sketch10.addConstraint(Sketcher.Constraint("DistanceX", 1, 1, 1, 2, 90.0))
sketch10.addConstraint(Sketcher.Constraint("DistanceX", 4, 2, 4, 1, 50.0))
sketch10.addConstraint(Sketcher.Constraint("DistanceY", 0, 2, 0, 1, 540.0))
sketch10.addConstraint(Sketcher.Constraint("DistanceY", 5, 1, 5, 2, 25.0))
sketch10.addConstraint(Sketcher.Constraint("DistanceY", 0, 2, -1, 1, 270.0))
sketch10.addConstraint(Sketcher.Constraint("DistanceY", 4, 2, -1, 1, 250.0))
sketch10.addConstraint(Sketcher.Constraint("DistanceX", 0, 2, 4, 2, 20.0))
sketch10.addConstraint(Sketcher.Constraint("DistanceX", 0, 2, -1, 1, 511.354446))
pad8 = body7.newObject("PartDesign::Pad", "Pad007")
pad8.Profile = sketch10
pad8.Length = 20
pad8.Reversed = True

sketch11 = body7.newObject("Sketcher::SketchObject", "Sketch010")
sketch11.AttachmentSupport = (doc.getObject("XY_Plane006"), [""])
sketch11.MapMode = "FlatFace"
sketch11.AttachmentOffset = App.Placement(App.Vector(0, 0, 1040), App.Rotation())
add_polygon(sketch11, [(-511, 270), (-511, -270), (-421, -270), (-421, 270)])
sketch11.addConstraint(Sketcher.Constraint("Vertical", 0))
sketch11.addConstraint(Sketcher.Constraint("Horizontal", 1))
sketch11.addConstraint(Sketcher.Constraint("Vertical", 2))
sketch11.addConstraint(Sketcher.Constraint("Horizontal", 3))
sketch11.addConstraint(Sketcher.Constraint("DistanceX", 1, 1, 1, 2, 90.0))
sketch11.addConstraint(Sketcher.Constraint("DistanceY", 0, 2, 0, 1, 540.0))
sketch11.addConstraint(Sketcher.Constraint("DistanceY", 0, 2, -1, 1, 270.0))
sketch11.addConstraint(Sketcher.Constraint("DistanceX", 0, 2, -1, 1, 511.354446))
pad9 = body7.newObject("PartDesign::Pad", "Pad008")
pad9.Profile = sketch11
pad9.Length = 20
doc.recompute()

chamfer = body7.newObject("PartDesign::Chamfer", "Chamfer")
chamfer.Base = (pad9, edges_at(pad9, [
    (-511.354, 0, 1060),
    (-466.354, 270, 1060),
    (-421.354, 0, 1060),
    (-466.354, -270, 1060),
    (-466.354, -270, 1020),
    (-511.354, 0, 1020),
    (-421.354, 0, 1020),
    (-466.354, 270, 1020),
]))
chamfer.Size = 5
body8 = doc.addObject("PartDesign::Body", "Body007")

sketch12 = body8.newObject("Sketcher::SketchObject", "Sketch011")
sketch12.AttachmentSupport = (doc.getObject("XZ_Plane007"), [""])
sketch12.MapMode = "FlatFace"
sketch12.AttachmentOffset = App.Placement(App.Vector(0, 0, 250), App.Rotation())
sketch12.addGeometry(Part.LineSegment(App.Vector(-1267, 552, 0), App.Vector(-1267, 642, 0)), False)
sketch12.addGeometry(Part.ArcOfCircle(Part.Circle(App.Vector(-1267, 542, 0), App.Vector(0, 0, 1), 100), math.radians(90), math.radians(270)), False)
sketch12.addGeometry(Part.LineSegment(App.Vector(-1267, 442, 0), App.Vector(-1267, 532, 0)), False)
sketch12.addGeometry(Part.ArcOfCircle(Part.Circle(App.Vector(-1267, 542, 0), App.Vector(0, 0, 1), 10), math.radians(90), math.radians(270)), False)
sketch12.addGeometry(Part.LineSegment(App.Vector(-1297, 605, 0), App.Vector(-1297, 478, 0)), False)
sketch12.addGeometry(Part.ArcOfCircle(Part.Circle(App.Vector(-1267, 542, 0), App.Vector(0, 0, 1), 70), math.radians(115), math.radians(245)), False)
sketch12.addConstraint(Sketcher.Constraint("Coincident", 0, 2, 1, 1))
sketch12.addConstraint(Sketcher.Constraint("Coincident", 1, 2, 2, 1))
sketch12.addConstraint(Sketcher.Constraint("Coincident", 2, 2, 3, 2))
sketch12.addConstraint(Sketcher.Constraint("Coincident", 3, 1, 0, 1))
sketch12.addConstraint(Sketcher.Constraint("Coincident", 4, 1, 5, 1))
sketch12.addConstraint(Sketcher.Constraint("Coincident", 5, 2, 4, 2))
sketch12.addConstraint(Sketcher.Constraint("Vertical", 0))
sketch12.addConstraint(Sketcher.Constraint("Vertical", 2))
sketch12.addConstraint(Sketcher.Constraint("Vertical", 4))
sketch12.addConstraint(Sketcher.Constraint("Coincident", 3, 3, 1, 3))
sketch12.addConstraint(Sketcher.Constraint("Coincident", 5, 3, 1, 3))
sketch12.addConstraint(Sketcher.Constraint("Vertical", 5, 3, 0, 2))
sketch12.addConstraint(Sketcher.Constraint("Vertical", 0, 2, 1, 2))
sketch12.addConstraint(Sketcher.Constraint("Radius", 1, 100.0))
sketch12.addConstraint(Sketcher.Constraint("Radius", 3, 10.0))
sketch12.addConstraint(Sketcher.Constraint("Radius", 5, 70.0))
sketch12.addConstraint(Sketcher.Constraint("DistanceX", 4, 1, 0, 2, 30.0))
sketch12.addConstraint(Sketcher.Constraint("DistanceY", -1, 1, 4, 1, 604.83747))
sketch12.addConstraint(Sketcher.Constraint("DistanceX", 1, 3, -1, 1, 1266.807437))
pad10 = body8.newObject("PartDesign::Pad", "Pad009")
pad10.Profile = sketch12
pad10.Length = 5
body9 = doc.addObject("PartDesign::Body", "Body008")

sketch13 = body9.newObject("Sketcher::SketchObject", "Sketch012")
sketch13.AttachmentSupport = (doc.getObject("XZ_Plane008"), [""])
sketch13.MapMode = "FlatFace"
sketch13.AttachmentOffset = App.Placement(App.Vector(0, 0, 250), App.Rotation())
add_polygon(sketch13, [(-1394, 1046), (-1394, 896), (-1194, 896), (-1194, 1046)])
sketch13.addConstraint(Sketcher.Constraint("Vertical", 0))
sketch13.addConstraint(Sketcher.Constraint("Horizontal", 1))
sketch13.addConstraint(Sketcher.Constraint("Vertical", 2))
sketch13.addConstraint(Sketcher.Constraint("Horizontal", 3))
sketch13.addConstraint(Sketcher.Constraint("DistanceX", 1, 1, 1, 2, 200.0))
sketch13.addConstraint(Sketcher.Constraint("DistanceY", 0, 2, 0, 1, 150.0))
sketch13.addConstraint(Sketcher.Constraint("DistanceX", 0, 2, -1, 1, 1394.384146))
sketch13.addConstraint(Sketcher.Constraint("DistanceY", -1, 1, 0, 2, 896.368384))
pad11 = body9.newObject("PartDesign::Pad", "Pad010")
pad11.Profile = sketch13
pad11.Length = 100
pad11.Reversed = True

sketch14 = body9.newObject("Sketcher::SketchObject", "Sketch013")
sketch14.AttachmentSupport = (doc.getObject("XZ_Plane008"), [""])
sketch14.MapMode = "FlatFace"
sketch14.AttachmentOffset = App.Placement(App.Vector(0, 0, 250), App.Rotation())
add_polygon(sketch14, [(-1344, 996), (-1344, 946), (-1244, 946), (-1244, 996)])
sketch14.addGeometry(Part.Circle(App.Vector(-1294, 923, 0), App.Vector(0, 0, 1), 10), False)
sketch14.addGeometry(Part.Circle(App.Vector(-1244, 923, 0), App.Vector(0, 0, 1), 10), False)
sketch14.addConstraint(Sketcher.Constraint("Vertical", 0))
sketch14.addConstraint(Sketcher.Constraint("Horizontal", 1))
sketch14.addConstraint(Sketcher.Constraint("Vertical", 2))
sketch14.addConstraint(Sketcher.Constraint("Horizontal", 3))
sketch14.addConstraint(Sketcher.Constraint("Equal", 4, 5))
sketch14.addConstraint(Sketcher.Constraint("Horizontal", 4, 3, 5, 3))
sketch14.addConstraint(Sketcher.Constraint("Vertical", 5, 3, 1, 2))
sketch14.addConstraint(Sketcher.Constraint("Diameter", 4, 20.0))
sketch14.addConstraint(Sketcher.Constraint("DistanceX", 1, 1, 1, 2, 100.0))
sketch14.addConstraint(Sketcher.Constraint("DistanceY", 0, 2, 0, 1, 50.0))
sketch14.addConstraint(Sketcher.Constraint("DistanceX", 4, 3, 5, 3, 50.0))
sketch14.addConstraint(Sketcher.Constraint("DistanceY", -1, 1, 4, 3, 923.115909))
sketch14.addConstraint(Sketcher.Constraint("DistanceX", 4, 3, -1, 1, 1294.384146))
sketch14.addConstraint(Sketcher.Constraint("DistanceY", -1, 1, 0, 2, 946.368384))
pad12 = body9.newObject("PartDesign::Pad", "Pad011")
pad12.Profile = sketch14
pad12.Length = 5
body10 = doc.addObject("PartDesign::Body", "Body009")

sketch15 = body10.newObject("Sketcher::SketchObject", "Sketch014")
sketch15.AttachmentSupport = (doc.getObject("XZ_Plane009"), [""])
sketch15.MapMode = "FlatFace"
sketch15.AttachmentOffset = App.Placement(App.Vector(0, 0, 250), App.Rotation())
sketch15.addGeometry(Part.LineSegment(App.Vector(400, 43, 0), App.Vector(400, 40, 0)), False)
sketch15.addGeometry(Part.LineSegment(App.Vector(400, 40, 0), App.Vector(500, 40, 0)), False)
sketch15.addGeometry(Part.ArcOfCircle(Part.Circle(App.Vector(500, 540, 0), App.Vector(0, 0, 1), 500), math.radians(-90), math.radians(2)), False)
sketch15.addGeometry(Part.LineSegment(App.Vector(999.7, 556, 0), App.Vector(996.7, 555.9, 0)), False)
sketch15.addGeometry(Part.ArcOfCircle(Part.Circle(App.Vector(500, 540, 0), App.Vector(0, 0, 1), 497), math.radians(-90), math.radians(2)), False)
sketch15.addGeometry(Part.LineSegment(App.Vector(500, 43, 0), App.Vector(400, 43, 0)), False)
sketch15.addConstraint(Sketcher.Constraint("Coincident", 0, 2, 1, 1))
sketch15.addConstraint(Sketcher.Constraint("Tangent", 1, 2, 2, 1))
sketch15.addConstraint(Sketcher.Constraint("Coincident", 2, 2, 3, 1))
sketch15.addConstraint(Sketcher.Constraint("Coincident", 3, 2, 4, 2))
sketch15.addConstraint(Sketcher.Constraint("Tangent", 4, 1, 5, 1))
sketch15.addConstraint(Sketcher.Constraint("Coincident", 5, 2, 0, 1))
sketch15.addConstraint(Sketcher.Constraint("Vertical", 0))
sketch15.addConstraint(Sketcher.Constraint("Horizontal", 1))
sketch15.addConstraint(Sketcher.Constraint("Horizontal", 5))
sketch15.addConstraint(Sketcher.Constraint("Coincident", 4, 3, 2, 3))
sketch15.addConstraint(Sketcher.Constraint("Radius", 2, 500.0))
sketch15.addConstraint(Sketcher.Constraint("Radius", 4, 497.000001))
sketch15.addConstraint(Sketcher.Constraint("DistanceX", 1, 1, 1, 2, 100.0))
sketch15.addConstraint(Sketcher.Constraint("DistanceX", -1, 1, 2, 3, 500.000001))
sketch15.addConstraint(Sketcher.Constraint("DistanceY", -1, 1, 2, 3, 540.0))
sketch15.addConstraint(Sketcher.Constraint("DistanceY", -1, 1, 3, 2, 555.916998))
sketch15.addConstraint(Sketcher.Constraint("Angle", 3, Q("-178.164731 deg")))
pad13 = body10.newObject("PartDesign::Pad", "Pad012")
pad13.Profile = sketch15
pad13.Length = 500
pad13.Reversed = True

doc.recompute()
